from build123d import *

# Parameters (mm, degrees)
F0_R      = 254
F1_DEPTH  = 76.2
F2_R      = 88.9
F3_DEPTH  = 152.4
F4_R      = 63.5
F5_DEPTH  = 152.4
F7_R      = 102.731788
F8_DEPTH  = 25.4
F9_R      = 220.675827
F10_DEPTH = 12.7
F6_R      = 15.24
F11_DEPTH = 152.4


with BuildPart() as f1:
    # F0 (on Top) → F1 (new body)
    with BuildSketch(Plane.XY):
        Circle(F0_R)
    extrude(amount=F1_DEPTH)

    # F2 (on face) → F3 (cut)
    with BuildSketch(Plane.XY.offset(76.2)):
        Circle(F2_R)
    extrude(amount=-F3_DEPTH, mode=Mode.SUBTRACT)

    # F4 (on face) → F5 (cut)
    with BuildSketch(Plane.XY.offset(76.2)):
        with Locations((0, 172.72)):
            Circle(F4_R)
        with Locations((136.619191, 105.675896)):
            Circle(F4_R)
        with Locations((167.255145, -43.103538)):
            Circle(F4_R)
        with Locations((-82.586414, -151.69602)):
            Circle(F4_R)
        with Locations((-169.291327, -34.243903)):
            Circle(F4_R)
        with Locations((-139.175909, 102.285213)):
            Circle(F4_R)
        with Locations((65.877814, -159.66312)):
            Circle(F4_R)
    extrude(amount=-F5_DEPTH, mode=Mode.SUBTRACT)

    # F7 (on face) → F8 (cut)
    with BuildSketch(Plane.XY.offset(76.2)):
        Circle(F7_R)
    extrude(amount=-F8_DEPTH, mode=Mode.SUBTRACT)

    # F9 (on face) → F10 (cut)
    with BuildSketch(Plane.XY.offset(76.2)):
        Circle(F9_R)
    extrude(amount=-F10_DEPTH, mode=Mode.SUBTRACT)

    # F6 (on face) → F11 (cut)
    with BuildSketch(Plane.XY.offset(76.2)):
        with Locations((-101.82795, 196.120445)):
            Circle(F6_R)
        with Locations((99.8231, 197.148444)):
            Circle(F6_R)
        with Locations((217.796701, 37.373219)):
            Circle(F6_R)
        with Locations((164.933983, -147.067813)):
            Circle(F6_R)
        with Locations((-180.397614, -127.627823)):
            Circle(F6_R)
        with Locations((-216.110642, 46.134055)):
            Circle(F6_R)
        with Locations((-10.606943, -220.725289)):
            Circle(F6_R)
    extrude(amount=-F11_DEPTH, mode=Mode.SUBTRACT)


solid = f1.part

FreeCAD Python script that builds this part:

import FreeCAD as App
import Part
import Sketcher
from FreeCAD import Vector
Q = App.Units.Quantity

doc = App.newDocument("Part")
params = doc.addObject("Spreadsheet::Sheet", "Params")
for row, (alias, value) in enumerate([
    ("sketch1_diameter", "20 in"),
    ("pad1_length", "3 in"),
    ("sketch2_diameter", "7 in"),
    ("pocket1_length", "6 in"),
    ("sketch3_diameter", "5 in"),
    ("pocket2_length", "6 in"),
    ("pocket3_length", "1 in"),
    ("pocket4_length", "0.5 in"),
    ("sketch6_diameter", "1.2 in"),
    ("pocket5_length", "6 in"),
], start=1):
    params.set(f"A{row}", alias)
    params.set(f"B{row}", "=" + value)
    params.setAlias(f"B{row}", alias)

body = doc.addObject("PartDesign::Body", "Body")

# Sketch on XY plane
sketch1 = body.newObject("Sketcher::SketchObject", "Sketch")
sketch1.AttachmentSupport = (doc.getObject("XY_Plane"), [""])
sketch1.MapMode = "FlatFace"
sketch1.addGeometry(Part.Circle(Vector(0, 0, 0), Vector(0, 0, 1), 254), False)
sketch1.addConstraint([
    Sketcher.Constraint("Coincident", 0, 3, -1, 1),
    Sketcher.Constraint("Diameter", 0, Q("20 in")),
])
sketch1.setExpression("Constraints[1]", "Params.sketch1_diameter")
pad1 = body.newObject("PartDesign::Pad", "Pad")
pad1.Profile = sketch1
pad1.setExpression("Length", "Params.pad1_length")

# Sketch on XY plane
sketch2 = body.newObject("Sketcher::SketchObject", "Sketch001")
sketch2.AttachmentSupport = (doc.getObject("XY_Plane"), [""])
sketch2.MapMode = "FlatFace"
sketch2.AttachmentOffset = App.Placement(Vector(0, 0, 3 * 25.4), App.Rotation())
sketch2.addGeometry(Part.Circle(Vector(0, 0, 0), Vector(0, 0, 1), 89), False)
sketch2.addConstraint([
    Sketcher.Constraint("Coincident", 0, 3, -1, 1),
    Sketcher.Constraint("Diameter", 0, Q("7 in")),
])
sketch2.setExpression("Constraints[1]", "Params.sketch2_diameter")
pocket1 = body.newObject("PartDesign::Pocket", "Pocket")
pocket1.Profile = sketch2
pocket1.setExpression("Length", "Params.pocket1_length")

# Sketch on XY plane
sketch3 = body.newObject("Sketcher::SketchObject", "Sketch002")
sketch3.AttachmentSupport = (doc.getObject("XY_Plane"), [""])
sketch3.MapMode = "FlatFace"
sketch3.AttachmentOffset = App.Placement(Vector(0, 0, 3 * 25.4), App.Rotation())
sketch3.addGeometry([
    Part.Circle(Vector(0, 173, 0), Vector(0, 0, 1), 64),  # 0
    Part.Circle(Vector(137, 106, 0), Vector(0, 0, 1), 64),  # 1
    Part.Circle(Vector(167, -43, 0), Vector(0, 0, 1), 64),  # 2
    Part.Circle(Vector(-83, -152, 0), Vector(0, 0, 1), 64),  # 3
    Part.Circle(Vector(-169, -34, 0), Vector(0, 0, 1), 64),  # 4
    Part.Circle(Vector(-139, 102, 0), Vector(0, 0, 1), 64),  # 5
    Part.Circle(Vector(66, -160, 0), Vector(0, 0, 1), 64),  # 6
], False)
sketch3.addConstraint([
    Sketcher.Constraint("Equal", 0, 1),
    Sketcher.Constraint("Equal", 1, 2),
    Sketcher.Constraint("Equal", 2, 3),
    Sketcher.Constraint("Equal", 3, 4),
    Sketcher.Constraint("Equal", 4, 5),
    Sketcher.Constraint("Equal", 5, 6),
    Sketcher.Constraint("PointOnObject", 0, 3, -2),
    Sketcher.Constraint("Diameter", 0, Q("5 in")),
    Sketcher.Constraint("DistanceY", -1, 1, 0, 3, Q("6.8 in")),
    Sketcher.Constraint("DistanceY", 4, 3, 1, 3, 139.919799),
    Sketcher.Constraint("DistanceX", 5, 3, 1, 3, 275.7951),
    Sketcher.Constraint("DistanceY", 6, 3, 3, 3, 7.9671),
    Sketcher.Constraint("DistanceX", -1, 1, 1, 3, 136.619191),
    Sketcher.Constraint("DistanceY", 3, 3, -1, 1, 151.69602),
    Sketcher.Constraint("DistanceX", 3, 3, 2, 3, 249.841559),
    Sketcher.Constraint("DistanceX", 4, 3, 1, 3, 305.910518),
    Sketcher.Constraint("DistanceX", 4, 3, 2, 3, 336.546472),
    Sketcher.Constraint("DistanceY", 2, 3, 5, 3, 145.388751),
    Sketcher.Constraint("DistanceX", 3, 3, 6, 3, 148.464228),
    Sketcher.Constraint("DistanceY", 6, 3, 2, 3, 116.559582),
    Sketcher.Constraint("DistanceY", -1, 1, 1, 3, 105.675896),
])
sketch3.setExpression("Constraints[7]", "Params.sketch3_diameter")
pocket2 = body.newObject("PartDesign::Pocket", "Pocket001")
pocket2.Profile = sketch3
pocket2.setExpression("Length", "Params.pocket2_length")

# Sketch on XY plane
sketch4 = body.newObject("Sketcher::SketchObject", "Sketch003")
sketch4.AttachmentSupport = (doc.getObject("XY_Plane"), [""])
sketch4.MapMode = "FlatFace"
sketch4.AttachmentOffset = App.Placement(Vector(0, 0, 3 * 25.4), App.Rotation())
sketch4.addGeometry(Part.Circle(Vector(0, 0, 0), Vector(0, 0, 1), 103), False)
sketch4.addConstraint([
    Sketcher.Constraint("Coincident", 0, 3, -1, 1),
    Sketcher.Constraint("Diameter", 0, 205.463576),
])
pocket3 = body.newObject("PartDesign::Pocket", "Pocket002")
pocket3.Profile = sketch4
pocket3.setExpression("Length", "Params.pocket3_length")

# Sketch on XY plane
sketch5 = body.newObject("Sketcher::SketchObject", "Sketch004")
sketch5.AttachmentSupport = (doc.getObject("XY_Plane"), [""])
sketch5.MapMode = "FlatFace"
sketch5.AttachmentOffset = App.Placement(Vector(0, 0, 3 * 25.4), App.Rotation())
sketch5.addGeometry(Part.Circle(Vector(0, 0, 0), Vector(0, 0, 1), 221), False)
sketch5.addConstraint([
    Sketcher.Constraint("Coincident", 0, 3, -1, 1),
    Sketcher.Constraint("Diameter", 0, 441.351654),
])
pocket4 = body.newObject("PartDesign::Pocket", "Pocket003")
pocket4.Profile = sketch5
pocket4.setExpression("Length", "Params.pocket4_length")

# Sketch on XY plane
sketch6 = body.newObject("Sketcher::SketchObject", "Sketch005")
sketch6.AttachmentSupport = (doc.getObject("XY_Plane"), [""])
sketch6.MapMode = "FlatFace"
sketch6.AttachmentOffset = App.Placement(Vector(0, 0, 3 * 25.4), App.Rotation())
sketch6.addGeometry([
    Part.Circle(Vector(-102, 196, 0), Vector(0, 0, 1), 15),  # 0
    Part.Circle(Vector(100, 197, 0), Vector(0, 0, 1), 15),  # 1
    Part.Circle(Vector(218, 37, 0), Vector(0, 0, 1), 15),  # 2
    Part.Circle(Vector(165, -147, 0), Vector(0, 0, 1), 15),  # 3
    Part.Circle(Vector(-180, -128, 0), Vector(0, 0, 1), 15),  # 4
    Part.Circle(Vector(-216, 46, 0), Vector(0, 0, 1), 15),  # 5
    Part.Circle(Vector(-11, -221, 0), Vector(0, 0, 1), 15),  # 6
], False)
sketch6.addConstraint([
    Sketcher.Constraint("Equal", 0, 1),
    Sketcher.Constraint("Equal", 1, 2),
    Sketcher.Constraint("Equal", 2, 3),
    Sketcher.Constraint("Equal", 3, 4),
    Sketcher.Constraint("Equal", 4, 5),
    Sketcher.Constraint("Equal", 5, 6),
    Sketcher.Constraint("Diameter", 0, Q("1.2 in")),
    Sketcher.Constraint("DistanceX", -1, 1, 1, 3, 99.8231),
    Sketcher.Constraint("DistanceX", -1, 1, 2, 3, 217.796701),
    Sketcher.Constraint("DistanceY", 0, 3, 1, 3, 1.027999),
    Sketcher.Constraint("DistanceX", 5, 3, 6, 3, 205.503699),
    Sketcher.Constraint("DistanceX", 0, 3, -1, 1, 101.82795),
    Sketcher.Constraint("DistanceY", -1, 1, 2, 3, 37.373219),
    Sketcher.Constraint("DistanceY", 6, 3, -1, 1, 220.725289),
    Sketcher.Constraint("DistanceY", 3, 3, 2, 3, 184.441032),
    Sketcher.Constraint("DistanceY", 3, 3, 0, 3, 343.188258),
    Sketcher.Constraint("DistanceY", 4, 3, 0, 3, 323.748268),
    Sketcher.Constraint("DistanceX", 5, 3, 4, 3, 35.713028),
    Sketcher.Constraint("DistanceY", 4, 3, 5, 3, 173.761878),
    Sketcher.Constraint("DistanceX", 5, 3, 1, 3, 315.933742),
    Sketcher.Constraint("DistanceX", -1, 1, 3, 3, 164.933983),
])
sketch6.setExpression("Constraints[6]", "Params.sketch6_diameter")
pocket5 = body.newObject("PartDesign::Pocket", "Pocket004")
pocket5.Profile = sketch6
pocket5.setExpression("Length", "Params.pocket5_length")

doc.recompute()
